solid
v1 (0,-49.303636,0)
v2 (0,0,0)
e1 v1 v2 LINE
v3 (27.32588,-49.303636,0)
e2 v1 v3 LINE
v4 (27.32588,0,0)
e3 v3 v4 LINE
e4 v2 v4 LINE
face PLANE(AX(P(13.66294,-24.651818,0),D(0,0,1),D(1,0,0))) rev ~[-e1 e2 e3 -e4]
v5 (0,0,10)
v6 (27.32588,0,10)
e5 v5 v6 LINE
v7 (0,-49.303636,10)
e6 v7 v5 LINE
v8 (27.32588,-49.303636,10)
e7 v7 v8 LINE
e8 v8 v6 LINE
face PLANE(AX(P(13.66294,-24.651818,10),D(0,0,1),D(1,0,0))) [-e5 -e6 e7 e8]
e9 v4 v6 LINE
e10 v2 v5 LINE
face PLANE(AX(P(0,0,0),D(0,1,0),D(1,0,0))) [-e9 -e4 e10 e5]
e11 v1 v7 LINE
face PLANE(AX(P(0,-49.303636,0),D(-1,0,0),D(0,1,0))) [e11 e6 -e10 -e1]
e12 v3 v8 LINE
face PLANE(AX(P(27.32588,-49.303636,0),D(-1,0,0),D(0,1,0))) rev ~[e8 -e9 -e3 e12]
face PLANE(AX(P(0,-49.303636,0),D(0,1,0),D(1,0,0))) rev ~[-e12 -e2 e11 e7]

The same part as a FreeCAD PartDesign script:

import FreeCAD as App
import Part
import Sketcher
from FreeCAD import Vector

doc = App.newDocument("Part")
body = doc.addObject("PartDesign::Body", "Body")

sketch1 = doc.addObject("Sketcher::SketchObject", "Sketch")
body.addObject(sketch1)
sketch1.AttachmentSupport = (doc.XY_Plane, [""])
sketch1.MapMode = "FlatFace"
sketch1.addGeometry([
    Part.LineSegment(Vector(0, 0, 0), Vector(0, -49, 0)),
    Part.LineSegment(Vector(0, -49, 0), Vector(27, -49, 0)),
    Part.LineSegment(Vector(27, -49, 0), Vector(27, 0, 0)),
    Part.LineSegment(Vector(27, 0, 0), Vector(0, 0, 0)),
], False)
sketch1.addConstraint([
    Sketcher.Constraint("Coincident", 0, 2, 1, 1),
    Sketcher.Constraint("Coincident", 1, 2, 2, 1),
    Sketcher.Constraint("Coincident", 2, 2, 3, 1),
    Sketcher.Constraint("Coincident", 3, 2, 0, 1),
    Sketcher.Constraint("Vertical", 0),
    Sketcher.Constraint("Horizontal", 1),
    Sketcher.Constraint("Vertical", 2),
    Sketcher.Constraint("Horizontal", 3),
    Sketcher.Constraint("Coincident", 3, 2, -1, 1),
    Sketcher.Constraint("DistanceX", 1, 1, 1, 2, 27.32588),
    Sketcher.Constraint("DistanceY", 0, 2, 0, 1, 49.303636),
])
pad1 = doc.addObject("PartDesign::Pad", "Pad")
body.addObject(pad1)
pad1.Profile = sketch1
pad1.Length = 10

doc.recompute()
